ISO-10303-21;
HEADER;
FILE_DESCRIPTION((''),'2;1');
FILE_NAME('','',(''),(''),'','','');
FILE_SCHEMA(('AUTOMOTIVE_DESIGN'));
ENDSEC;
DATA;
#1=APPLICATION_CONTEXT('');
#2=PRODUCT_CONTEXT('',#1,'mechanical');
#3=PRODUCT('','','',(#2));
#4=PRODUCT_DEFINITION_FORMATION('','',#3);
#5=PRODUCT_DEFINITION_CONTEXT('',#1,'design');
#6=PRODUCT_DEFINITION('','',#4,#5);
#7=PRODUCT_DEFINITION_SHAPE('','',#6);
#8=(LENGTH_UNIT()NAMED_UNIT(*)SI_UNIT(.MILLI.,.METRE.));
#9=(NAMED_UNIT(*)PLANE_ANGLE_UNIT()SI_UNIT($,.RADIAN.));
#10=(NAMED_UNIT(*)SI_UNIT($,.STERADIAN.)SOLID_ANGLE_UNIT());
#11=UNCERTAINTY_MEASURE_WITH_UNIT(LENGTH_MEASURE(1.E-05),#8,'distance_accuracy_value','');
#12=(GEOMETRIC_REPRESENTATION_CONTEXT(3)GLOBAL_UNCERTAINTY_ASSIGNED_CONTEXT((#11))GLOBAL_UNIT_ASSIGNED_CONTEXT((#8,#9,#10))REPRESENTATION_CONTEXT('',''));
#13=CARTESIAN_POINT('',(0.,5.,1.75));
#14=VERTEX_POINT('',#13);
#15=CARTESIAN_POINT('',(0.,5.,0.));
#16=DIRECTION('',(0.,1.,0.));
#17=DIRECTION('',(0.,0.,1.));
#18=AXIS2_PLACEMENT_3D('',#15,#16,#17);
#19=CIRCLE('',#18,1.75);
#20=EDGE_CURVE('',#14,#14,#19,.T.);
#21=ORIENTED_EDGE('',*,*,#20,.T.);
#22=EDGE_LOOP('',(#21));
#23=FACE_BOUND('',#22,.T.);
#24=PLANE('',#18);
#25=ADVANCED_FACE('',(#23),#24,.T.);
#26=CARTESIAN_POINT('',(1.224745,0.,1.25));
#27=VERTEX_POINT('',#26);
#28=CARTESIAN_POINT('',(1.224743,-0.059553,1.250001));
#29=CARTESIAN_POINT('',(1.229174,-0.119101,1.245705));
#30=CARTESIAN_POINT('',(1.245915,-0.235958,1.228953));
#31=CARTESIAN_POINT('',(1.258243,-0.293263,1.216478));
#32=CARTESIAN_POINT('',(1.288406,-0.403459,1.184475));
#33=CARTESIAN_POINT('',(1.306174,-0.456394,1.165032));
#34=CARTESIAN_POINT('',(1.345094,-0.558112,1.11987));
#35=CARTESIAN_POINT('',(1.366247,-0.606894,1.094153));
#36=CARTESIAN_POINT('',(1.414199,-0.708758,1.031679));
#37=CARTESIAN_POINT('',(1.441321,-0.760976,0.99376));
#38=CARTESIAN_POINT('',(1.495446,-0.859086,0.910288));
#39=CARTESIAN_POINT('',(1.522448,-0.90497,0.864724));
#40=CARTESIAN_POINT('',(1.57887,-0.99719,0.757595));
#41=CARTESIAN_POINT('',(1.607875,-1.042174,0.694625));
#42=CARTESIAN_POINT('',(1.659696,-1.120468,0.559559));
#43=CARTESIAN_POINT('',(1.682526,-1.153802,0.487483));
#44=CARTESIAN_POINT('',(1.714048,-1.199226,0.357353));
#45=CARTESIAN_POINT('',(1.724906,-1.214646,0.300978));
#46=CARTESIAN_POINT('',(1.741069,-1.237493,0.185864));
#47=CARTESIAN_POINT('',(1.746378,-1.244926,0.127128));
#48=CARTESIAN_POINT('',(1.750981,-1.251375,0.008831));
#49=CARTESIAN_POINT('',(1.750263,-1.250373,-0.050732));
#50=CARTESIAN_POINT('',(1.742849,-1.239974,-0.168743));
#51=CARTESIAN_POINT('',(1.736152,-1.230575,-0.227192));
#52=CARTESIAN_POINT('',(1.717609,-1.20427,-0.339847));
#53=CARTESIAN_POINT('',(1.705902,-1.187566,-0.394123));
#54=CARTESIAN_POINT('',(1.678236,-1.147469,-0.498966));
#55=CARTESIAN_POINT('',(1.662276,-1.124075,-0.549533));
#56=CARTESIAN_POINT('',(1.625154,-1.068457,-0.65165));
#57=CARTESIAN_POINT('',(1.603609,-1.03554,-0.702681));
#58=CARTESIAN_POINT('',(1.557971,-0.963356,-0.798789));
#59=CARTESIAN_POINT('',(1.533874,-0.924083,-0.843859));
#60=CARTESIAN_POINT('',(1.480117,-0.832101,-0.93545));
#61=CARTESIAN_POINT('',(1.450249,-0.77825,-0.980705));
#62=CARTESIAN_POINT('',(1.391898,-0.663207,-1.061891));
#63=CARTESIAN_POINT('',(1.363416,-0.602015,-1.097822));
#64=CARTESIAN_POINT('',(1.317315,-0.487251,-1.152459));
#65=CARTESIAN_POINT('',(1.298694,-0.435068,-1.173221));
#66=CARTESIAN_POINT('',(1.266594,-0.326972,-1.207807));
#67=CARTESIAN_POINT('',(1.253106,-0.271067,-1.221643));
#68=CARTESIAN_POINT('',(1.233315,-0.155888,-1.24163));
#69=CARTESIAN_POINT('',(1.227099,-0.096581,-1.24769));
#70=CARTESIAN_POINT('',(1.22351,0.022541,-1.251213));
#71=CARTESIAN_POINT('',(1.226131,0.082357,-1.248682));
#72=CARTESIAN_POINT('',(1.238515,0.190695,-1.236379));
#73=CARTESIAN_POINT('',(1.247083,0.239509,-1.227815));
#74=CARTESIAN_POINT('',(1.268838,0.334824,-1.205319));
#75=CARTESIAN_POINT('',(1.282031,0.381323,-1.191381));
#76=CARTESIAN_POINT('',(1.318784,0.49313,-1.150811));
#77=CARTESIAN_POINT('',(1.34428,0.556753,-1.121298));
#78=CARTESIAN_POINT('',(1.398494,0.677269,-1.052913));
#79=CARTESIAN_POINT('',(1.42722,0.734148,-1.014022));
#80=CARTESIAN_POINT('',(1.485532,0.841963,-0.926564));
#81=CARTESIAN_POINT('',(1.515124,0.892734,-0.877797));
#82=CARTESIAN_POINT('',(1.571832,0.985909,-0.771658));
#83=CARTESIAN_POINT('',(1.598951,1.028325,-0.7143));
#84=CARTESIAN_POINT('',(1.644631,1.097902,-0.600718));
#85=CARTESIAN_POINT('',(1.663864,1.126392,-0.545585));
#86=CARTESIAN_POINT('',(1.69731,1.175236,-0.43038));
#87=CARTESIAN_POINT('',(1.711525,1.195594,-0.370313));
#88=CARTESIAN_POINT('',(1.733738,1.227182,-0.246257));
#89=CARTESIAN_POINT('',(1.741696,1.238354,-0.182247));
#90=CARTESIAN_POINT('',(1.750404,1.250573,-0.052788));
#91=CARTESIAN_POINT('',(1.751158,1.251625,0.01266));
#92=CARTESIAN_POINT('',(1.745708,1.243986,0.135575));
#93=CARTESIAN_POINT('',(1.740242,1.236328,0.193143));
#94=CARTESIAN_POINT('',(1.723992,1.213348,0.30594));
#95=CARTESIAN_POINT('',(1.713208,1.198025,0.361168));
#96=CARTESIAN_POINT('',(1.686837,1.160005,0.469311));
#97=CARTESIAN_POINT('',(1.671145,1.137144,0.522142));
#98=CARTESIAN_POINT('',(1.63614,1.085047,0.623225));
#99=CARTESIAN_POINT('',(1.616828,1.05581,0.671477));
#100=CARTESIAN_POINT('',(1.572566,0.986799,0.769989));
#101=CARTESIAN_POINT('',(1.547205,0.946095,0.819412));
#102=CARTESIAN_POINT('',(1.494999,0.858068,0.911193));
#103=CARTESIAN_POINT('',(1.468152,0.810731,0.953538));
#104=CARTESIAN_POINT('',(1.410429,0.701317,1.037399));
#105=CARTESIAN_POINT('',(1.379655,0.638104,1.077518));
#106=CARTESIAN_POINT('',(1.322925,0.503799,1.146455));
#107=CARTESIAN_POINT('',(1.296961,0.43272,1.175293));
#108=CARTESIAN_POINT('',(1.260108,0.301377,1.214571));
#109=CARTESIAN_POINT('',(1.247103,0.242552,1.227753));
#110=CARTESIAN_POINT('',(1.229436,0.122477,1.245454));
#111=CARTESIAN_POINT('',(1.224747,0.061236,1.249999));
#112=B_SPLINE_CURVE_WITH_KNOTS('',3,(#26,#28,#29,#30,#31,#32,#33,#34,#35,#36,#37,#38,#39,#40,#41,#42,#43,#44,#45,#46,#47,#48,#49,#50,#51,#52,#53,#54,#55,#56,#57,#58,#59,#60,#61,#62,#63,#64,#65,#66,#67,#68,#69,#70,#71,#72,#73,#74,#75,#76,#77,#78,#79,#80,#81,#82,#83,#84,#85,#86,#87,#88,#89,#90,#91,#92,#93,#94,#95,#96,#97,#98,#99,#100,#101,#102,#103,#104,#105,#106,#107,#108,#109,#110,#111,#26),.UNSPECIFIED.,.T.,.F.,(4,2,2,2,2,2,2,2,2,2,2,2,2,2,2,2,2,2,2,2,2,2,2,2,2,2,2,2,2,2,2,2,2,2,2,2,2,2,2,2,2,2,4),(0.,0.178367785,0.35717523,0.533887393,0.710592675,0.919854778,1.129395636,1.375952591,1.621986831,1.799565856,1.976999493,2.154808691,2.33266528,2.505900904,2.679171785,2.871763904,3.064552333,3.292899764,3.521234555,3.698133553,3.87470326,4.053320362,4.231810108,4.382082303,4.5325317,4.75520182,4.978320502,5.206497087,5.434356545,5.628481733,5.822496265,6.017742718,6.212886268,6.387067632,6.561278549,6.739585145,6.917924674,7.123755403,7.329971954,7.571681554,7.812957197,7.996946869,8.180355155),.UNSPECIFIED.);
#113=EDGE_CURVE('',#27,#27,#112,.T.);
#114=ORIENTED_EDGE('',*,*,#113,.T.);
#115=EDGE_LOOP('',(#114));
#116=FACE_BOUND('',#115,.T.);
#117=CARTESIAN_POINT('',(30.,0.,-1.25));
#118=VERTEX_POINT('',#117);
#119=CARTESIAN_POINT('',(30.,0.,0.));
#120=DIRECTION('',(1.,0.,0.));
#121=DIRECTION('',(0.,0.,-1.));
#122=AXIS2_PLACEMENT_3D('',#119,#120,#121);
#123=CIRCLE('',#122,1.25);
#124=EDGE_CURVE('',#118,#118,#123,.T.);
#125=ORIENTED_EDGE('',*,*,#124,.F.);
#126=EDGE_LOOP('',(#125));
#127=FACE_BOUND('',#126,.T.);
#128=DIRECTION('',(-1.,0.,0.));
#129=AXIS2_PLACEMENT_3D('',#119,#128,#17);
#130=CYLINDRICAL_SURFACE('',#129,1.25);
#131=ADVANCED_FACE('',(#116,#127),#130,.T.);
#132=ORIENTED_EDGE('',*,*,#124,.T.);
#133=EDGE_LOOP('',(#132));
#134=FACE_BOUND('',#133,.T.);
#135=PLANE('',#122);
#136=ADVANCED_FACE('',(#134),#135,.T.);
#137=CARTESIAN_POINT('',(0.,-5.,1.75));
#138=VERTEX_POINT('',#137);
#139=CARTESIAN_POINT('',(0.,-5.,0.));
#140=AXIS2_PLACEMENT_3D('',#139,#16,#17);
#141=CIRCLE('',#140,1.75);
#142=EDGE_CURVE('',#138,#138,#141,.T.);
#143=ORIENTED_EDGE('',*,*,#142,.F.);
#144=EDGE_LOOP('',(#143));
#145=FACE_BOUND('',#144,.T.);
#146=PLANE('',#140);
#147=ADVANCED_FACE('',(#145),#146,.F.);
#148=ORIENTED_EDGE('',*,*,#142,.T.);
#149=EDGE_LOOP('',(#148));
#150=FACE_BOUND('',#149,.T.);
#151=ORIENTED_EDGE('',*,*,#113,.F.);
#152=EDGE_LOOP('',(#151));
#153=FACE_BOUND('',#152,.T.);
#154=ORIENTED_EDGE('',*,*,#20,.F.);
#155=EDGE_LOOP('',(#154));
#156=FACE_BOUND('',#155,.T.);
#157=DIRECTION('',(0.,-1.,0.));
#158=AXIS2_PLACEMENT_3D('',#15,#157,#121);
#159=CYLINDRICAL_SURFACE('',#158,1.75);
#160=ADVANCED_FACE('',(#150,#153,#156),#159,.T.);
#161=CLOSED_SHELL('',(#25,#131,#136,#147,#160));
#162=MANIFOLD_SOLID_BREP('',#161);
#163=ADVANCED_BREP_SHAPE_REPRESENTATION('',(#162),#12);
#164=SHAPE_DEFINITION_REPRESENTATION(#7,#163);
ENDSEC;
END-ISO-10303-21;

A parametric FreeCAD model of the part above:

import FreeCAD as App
import Part
import Sketcher
Q = App.Units.Quantity

doc = App.newDocument("Part")
body = doc.addObject("PartDesign::Body", "Body")

sketch1 = body.newObject("Sketcher::SketchObject", "Sketch")
sketch1.AttachmentSupport = (doc.getObject("XZ_Plane"), [""])
sketch1.MapMode = "FlatFace"
sketch1.addGeometry(Part.Circle(App.Vector(0, 0, 0), App.Vector(0, 0, 1), 1.75), False)
sketch1.addConstraint([
    Sketcher.Constraint("Coincident", 0, 3, -1, 1),
    Sketcher.Constraint("Diameter", 0, Q("3.5 mm")),
])
pad1 = body.newObject("PartDesign::Pad", "Pad")
pad1.Profile = sketch1
pad1.Length = 10
pad1.Midplane = True

sketch2 = body.newObject("Sketcher::SketchObject", "Sketch001")
sketch2.AttachmentSupport = (doc.getObject("YZ_Plane"), [""])
sketch2.MapMode = "FlatFace"
sketch2.addGeometry(Part.Circle(App.Vector(0, 0, 0), App.Vector(0, 0, 1), 1.25), False)
sketch2.addConstraint([
    Sketcher.Constraint("Coincident", 0, 3, -1, 1),
    Sketcher.Constraint("Diameter", 0, Q("2.5 mm")),
])
pad2 = body.newObject("PartDesign::Pad", "Pad001")
pad2.Profile = sketch2
pad2.Length = 30

doc.recompute()
